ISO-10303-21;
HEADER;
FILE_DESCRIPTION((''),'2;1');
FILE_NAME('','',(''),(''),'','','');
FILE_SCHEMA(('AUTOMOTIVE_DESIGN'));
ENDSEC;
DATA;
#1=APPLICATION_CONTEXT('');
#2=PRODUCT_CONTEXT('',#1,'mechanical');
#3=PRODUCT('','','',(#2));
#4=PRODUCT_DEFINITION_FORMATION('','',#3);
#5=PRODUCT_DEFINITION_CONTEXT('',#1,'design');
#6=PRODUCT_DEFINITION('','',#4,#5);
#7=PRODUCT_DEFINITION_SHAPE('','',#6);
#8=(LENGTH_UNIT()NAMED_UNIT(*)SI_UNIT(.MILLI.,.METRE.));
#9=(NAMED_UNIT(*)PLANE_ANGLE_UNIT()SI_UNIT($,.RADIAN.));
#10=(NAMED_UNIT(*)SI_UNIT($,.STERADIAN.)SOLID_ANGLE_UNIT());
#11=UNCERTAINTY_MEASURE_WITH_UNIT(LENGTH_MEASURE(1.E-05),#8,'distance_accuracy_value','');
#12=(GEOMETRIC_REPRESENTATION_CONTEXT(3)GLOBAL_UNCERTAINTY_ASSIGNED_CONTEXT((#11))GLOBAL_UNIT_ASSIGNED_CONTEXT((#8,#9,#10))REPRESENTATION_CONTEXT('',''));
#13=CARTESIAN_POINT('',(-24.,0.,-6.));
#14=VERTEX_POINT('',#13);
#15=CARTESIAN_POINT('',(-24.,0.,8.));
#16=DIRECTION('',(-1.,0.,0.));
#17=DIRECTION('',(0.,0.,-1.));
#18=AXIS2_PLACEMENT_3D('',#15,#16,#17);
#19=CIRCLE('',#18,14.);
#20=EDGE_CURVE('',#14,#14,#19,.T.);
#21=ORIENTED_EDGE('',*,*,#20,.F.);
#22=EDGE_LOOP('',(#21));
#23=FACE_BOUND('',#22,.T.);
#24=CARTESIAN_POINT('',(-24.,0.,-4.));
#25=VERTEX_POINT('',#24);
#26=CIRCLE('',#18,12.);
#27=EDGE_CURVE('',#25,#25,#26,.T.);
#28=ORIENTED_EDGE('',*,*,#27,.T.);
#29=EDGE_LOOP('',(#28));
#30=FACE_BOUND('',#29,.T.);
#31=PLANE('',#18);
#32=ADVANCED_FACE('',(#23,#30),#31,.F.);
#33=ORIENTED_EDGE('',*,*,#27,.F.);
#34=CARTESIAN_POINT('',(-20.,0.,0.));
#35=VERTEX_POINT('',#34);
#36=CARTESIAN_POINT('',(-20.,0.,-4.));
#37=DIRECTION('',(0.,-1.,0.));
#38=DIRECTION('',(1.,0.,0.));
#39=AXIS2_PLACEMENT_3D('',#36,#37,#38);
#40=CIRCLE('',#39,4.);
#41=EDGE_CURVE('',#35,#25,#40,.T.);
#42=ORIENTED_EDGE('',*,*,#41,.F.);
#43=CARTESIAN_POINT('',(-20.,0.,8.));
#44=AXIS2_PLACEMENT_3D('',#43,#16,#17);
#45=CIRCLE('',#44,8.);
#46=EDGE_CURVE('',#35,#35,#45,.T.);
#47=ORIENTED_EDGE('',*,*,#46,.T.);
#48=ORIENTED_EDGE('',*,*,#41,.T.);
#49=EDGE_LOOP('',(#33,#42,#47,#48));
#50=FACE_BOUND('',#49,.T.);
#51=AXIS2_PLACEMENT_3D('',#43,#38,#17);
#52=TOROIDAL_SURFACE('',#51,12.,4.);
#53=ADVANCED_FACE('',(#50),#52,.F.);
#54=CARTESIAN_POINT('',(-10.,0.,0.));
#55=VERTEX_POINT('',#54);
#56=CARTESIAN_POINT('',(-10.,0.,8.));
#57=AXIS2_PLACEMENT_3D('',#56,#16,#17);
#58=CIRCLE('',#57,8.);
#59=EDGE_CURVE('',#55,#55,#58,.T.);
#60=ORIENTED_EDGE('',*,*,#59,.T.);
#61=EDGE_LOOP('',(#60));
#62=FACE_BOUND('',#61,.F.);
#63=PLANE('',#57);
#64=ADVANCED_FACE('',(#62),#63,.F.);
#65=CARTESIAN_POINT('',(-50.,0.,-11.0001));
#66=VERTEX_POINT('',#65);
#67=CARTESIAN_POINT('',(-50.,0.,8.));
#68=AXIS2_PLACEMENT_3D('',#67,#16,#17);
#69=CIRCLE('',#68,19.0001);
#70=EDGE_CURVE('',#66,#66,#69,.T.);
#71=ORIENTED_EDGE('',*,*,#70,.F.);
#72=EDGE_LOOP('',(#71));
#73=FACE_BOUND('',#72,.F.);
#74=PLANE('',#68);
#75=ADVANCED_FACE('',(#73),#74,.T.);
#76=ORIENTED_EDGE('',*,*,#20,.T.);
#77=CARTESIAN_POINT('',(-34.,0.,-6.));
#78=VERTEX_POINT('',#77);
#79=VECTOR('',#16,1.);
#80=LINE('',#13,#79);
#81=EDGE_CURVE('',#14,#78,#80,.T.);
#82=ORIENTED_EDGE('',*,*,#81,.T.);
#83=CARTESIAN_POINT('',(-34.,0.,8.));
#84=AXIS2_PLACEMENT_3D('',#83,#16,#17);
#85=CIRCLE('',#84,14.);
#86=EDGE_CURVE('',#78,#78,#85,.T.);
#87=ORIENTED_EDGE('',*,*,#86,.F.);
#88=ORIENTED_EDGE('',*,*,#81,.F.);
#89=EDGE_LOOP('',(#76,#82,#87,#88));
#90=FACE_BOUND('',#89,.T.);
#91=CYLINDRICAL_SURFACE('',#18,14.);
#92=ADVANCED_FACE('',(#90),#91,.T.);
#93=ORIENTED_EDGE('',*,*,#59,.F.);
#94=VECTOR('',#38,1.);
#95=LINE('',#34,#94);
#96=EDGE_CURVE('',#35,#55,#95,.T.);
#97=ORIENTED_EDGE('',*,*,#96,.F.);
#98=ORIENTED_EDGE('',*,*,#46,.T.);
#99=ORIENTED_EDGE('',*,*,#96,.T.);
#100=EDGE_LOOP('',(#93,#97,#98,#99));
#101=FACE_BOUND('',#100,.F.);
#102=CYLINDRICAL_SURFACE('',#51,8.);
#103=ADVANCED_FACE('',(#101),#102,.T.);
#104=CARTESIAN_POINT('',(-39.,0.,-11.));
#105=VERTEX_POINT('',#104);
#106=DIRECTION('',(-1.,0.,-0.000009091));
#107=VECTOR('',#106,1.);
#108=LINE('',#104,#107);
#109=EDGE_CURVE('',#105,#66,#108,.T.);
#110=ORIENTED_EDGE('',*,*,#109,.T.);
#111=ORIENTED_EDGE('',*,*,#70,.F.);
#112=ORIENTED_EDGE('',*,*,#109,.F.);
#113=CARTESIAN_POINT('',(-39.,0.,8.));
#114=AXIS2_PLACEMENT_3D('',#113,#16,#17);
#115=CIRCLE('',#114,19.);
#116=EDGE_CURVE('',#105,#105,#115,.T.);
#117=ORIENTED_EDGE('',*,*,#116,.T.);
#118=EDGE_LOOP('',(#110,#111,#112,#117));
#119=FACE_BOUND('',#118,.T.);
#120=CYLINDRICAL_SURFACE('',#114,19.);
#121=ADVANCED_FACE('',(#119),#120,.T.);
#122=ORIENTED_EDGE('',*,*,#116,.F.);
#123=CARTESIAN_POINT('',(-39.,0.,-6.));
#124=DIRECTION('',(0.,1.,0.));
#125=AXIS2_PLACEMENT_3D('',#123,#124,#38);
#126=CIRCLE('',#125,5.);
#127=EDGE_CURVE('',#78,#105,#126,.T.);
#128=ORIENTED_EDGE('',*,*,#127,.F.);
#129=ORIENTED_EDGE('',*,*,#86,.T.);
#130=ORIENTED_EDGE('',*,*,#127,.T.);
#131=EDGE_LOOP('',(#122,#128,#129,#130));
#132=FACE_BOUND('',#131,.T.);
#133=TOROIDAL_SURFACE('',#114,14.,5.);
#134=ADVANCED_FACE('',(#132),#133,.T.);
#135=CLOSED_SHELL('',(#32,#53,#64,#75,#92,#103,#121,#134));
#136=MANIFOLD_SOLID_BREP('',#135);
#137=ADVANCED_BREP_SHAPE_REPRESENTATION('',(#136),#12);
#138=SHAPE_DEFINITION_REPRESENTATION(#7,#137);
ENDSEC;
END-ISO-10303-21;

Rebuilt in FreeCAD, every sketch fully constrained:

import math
import FreeCAD as App
import Part
import Sketcher
from FreeCAD import Vector
Q = App.Units.Quantity

doc = App.newDocument("Part")
params = doc.addObject("Spreadsheet::Sheet", "Params")
for row, (alias, value) in enumerate([
    ("sketch1_radius", "5 mm"),
    ("sketch1_radius2", "4 mm"),
    ("sketch1_width", "40 mm"),
    ("sketch1_width2", "11 mm"),
    ("sketch1_height", "8 mm"),
    ("revolution_angle", "360 deg"),
], start=1):
    params.set(f"A{row}", alias)
    params.set(f"B{row}", "=" + value)
    params.setAlias(f"B{row}", alias)

body = doc.addObject("PartDesign::Body", "Body")

# Sketch on XZ plane
sketch1 = body.newObject("Sketcher::SketchObject", "Sketch")
sketch1.AttachmentSupport = (doc.getObject("XZ_Plane"), [""])
sketch1.MapMode = "FlatFace"
sketch1.addGeometry(Part.LineSegment(Vector(-10, 0, 0), Vector(-10, 8, 0)), False)
sketch1.addGeometry(Part.LineSegment(Vector(-10, 8, 0), Vector(-50, 8, 0)), False)
sketch1.addGeometry(Part.LineSegment(Vector(-50, 8, 0), Vector(-50, -11, 0)), False)
sketch1.addGeometry(Part.LineSegment(Vector(-50, -11, 0), Vector(-39, -11, 0)), False)
sketch1.addGeometry(Part.ArcOfCircle(Part.Circle(Vector(-39, -6, 0), Vector(0, 0, 1), 5), math.radians(-90), math.radians(0)), False)
sketch1.addGeometry(Part.LineSegment(Vector(-34, -6, 0), Vector(-24, -6, 0)), False)
sketch1.addGeometry(Part.LineSegment(Vector(-24, -6, 0), Vector(-24, -4, 0)), False)
sketch1.addGeometry(Part.ArcOfCircle(Part.Circle(Vector(-20, -4, 0), Vector(0, 0, 1), 4), math.radians(90), math.radians(180)), False)
sketch1.addGeometry(Part.LineSegment(Vector(-20, 0, 0), Vector(-10, 0, 0)), False)
sketch1.addGeometry(Part.LineSegment(Vector(-10, 8, 0), Vector(-50, 8, 0)), True)  # axis
sketch1.addConstraint(Sketcher.Constraint("Coincident", 0, 2, 1, 1))
sketch1.addConstraint(Sketcher.Constraint("Coincident", 1, 2, 2, 1))
sketch1.addConstraint(Sketcher.Constraint("Coincident", 2, 2, 3, 1))
sketch1.addConstraint(Sketcher.Constraint("Tangent", 3, 2, 4, 1))
sketch1.addConstraint(Sketcher.Constraint("Coincident", 4, 2, 5, 1))
sketch1.addConstraint(Sketcher.Constraint("Coincident", 5, 2, 6, 1))
sketch1.addConstraint(Sketcher.Constraint("Tangent", 6, 2, 7, 2))
sketch1.addConstraint(Sketcher.Constraint("Tangent", 7, 1, 8, 1))
sketch1.addConstraint(Sketcher.Constraint("Coincident", 8, 2, 0, 1))
sketch1.addConstraint(Sketcher.Constraint("Vertical", 0))
sketch1.addConstraint(Sketcher.Constraint("Horizontal", 1))
sketch1.addConstraint(Sketcher.Constraint("Vertical", 2))
sketch1.addConstraint(Sketcher.Constraint("Horizontal", 3))
sketch1.addConstraint(Sketcher.Constraint("Horizontal", 5))
sketch1.addConstraint(Sketcher.Constraint("Vertical", 6))
sketch1.addConstraint(Sketcher.Constraint("Horizontal", 8))
sketch1.addConstraint(Sketcher.Constraint("Horizontal", 9))
sketch1.addConstraint(Sketcher.Constraint("Coincident", 9, 1, 0, 2))
sketch1.addConstraint(Sketcher.Constraint("PointOnObject", 7, 1, -1))
sketch1.addConstraint(Sketcher.Constraint("Vertical", 2, 2, 9, 2))
sketch1.addConstraint(Sketcher.Constraint("Equal", 5, 8))
sketch1.addConstraint(Sketcher.Constraint("Radius", 4, Q("5 mm")))
sketch1.addConstraint(Sketcher.Constraint("Radius", 7, Q("4 mm")))
sketch1.addConstraint(Sketcher.Constraint("DistanceX", 1, 2, 1, 1, Q("40 mm")))
sketch1.addConstraint(Sketcher.Constraint("DistanceX", 3, 1, 3, 2, Q("11 mm")))
sketch1.addConstraint(Sketcher.Constraint("DistanceY", 0, 1, 0, 2, Q("8 mm")))
sketch1.addConstraint(Sketcher.Constraint("DistanceY", 2, 2, 2, 1, Q("19 mm")))
sketch1.addConstraint(Sketcher.Constraint("DistanceY", 6, 1, 6, 2, Q("2 mm")))
sketch1.addConstraint(Sketcher.Constraint("DistanceX", 4, 3, -1, 1, Q("39 mm")))
sketch1.setExpression("Constraints[21]", "Params.sketch1_radius")
sketch1.setExpression("Constraints[22]", "Params.sketch1_radius2")
sketch1.setExpression("Constraints[23]", "Params.sketch1_width")
sketch1.setExpression("Constraints[24]", "Params.sketch1_width2")
sketch1.setExpression("Constraints[25]", "Params.sketch1_height")
revolution = body.newObject("PartDesign::Revolution", "Revolution")
revolution.Profile = sketch1
revolution.ReferenceAxis = (sketch1, ["Axis0"])
revolution.setExpression("Angle", "Params.revolution_angle")

doc.recompute()
